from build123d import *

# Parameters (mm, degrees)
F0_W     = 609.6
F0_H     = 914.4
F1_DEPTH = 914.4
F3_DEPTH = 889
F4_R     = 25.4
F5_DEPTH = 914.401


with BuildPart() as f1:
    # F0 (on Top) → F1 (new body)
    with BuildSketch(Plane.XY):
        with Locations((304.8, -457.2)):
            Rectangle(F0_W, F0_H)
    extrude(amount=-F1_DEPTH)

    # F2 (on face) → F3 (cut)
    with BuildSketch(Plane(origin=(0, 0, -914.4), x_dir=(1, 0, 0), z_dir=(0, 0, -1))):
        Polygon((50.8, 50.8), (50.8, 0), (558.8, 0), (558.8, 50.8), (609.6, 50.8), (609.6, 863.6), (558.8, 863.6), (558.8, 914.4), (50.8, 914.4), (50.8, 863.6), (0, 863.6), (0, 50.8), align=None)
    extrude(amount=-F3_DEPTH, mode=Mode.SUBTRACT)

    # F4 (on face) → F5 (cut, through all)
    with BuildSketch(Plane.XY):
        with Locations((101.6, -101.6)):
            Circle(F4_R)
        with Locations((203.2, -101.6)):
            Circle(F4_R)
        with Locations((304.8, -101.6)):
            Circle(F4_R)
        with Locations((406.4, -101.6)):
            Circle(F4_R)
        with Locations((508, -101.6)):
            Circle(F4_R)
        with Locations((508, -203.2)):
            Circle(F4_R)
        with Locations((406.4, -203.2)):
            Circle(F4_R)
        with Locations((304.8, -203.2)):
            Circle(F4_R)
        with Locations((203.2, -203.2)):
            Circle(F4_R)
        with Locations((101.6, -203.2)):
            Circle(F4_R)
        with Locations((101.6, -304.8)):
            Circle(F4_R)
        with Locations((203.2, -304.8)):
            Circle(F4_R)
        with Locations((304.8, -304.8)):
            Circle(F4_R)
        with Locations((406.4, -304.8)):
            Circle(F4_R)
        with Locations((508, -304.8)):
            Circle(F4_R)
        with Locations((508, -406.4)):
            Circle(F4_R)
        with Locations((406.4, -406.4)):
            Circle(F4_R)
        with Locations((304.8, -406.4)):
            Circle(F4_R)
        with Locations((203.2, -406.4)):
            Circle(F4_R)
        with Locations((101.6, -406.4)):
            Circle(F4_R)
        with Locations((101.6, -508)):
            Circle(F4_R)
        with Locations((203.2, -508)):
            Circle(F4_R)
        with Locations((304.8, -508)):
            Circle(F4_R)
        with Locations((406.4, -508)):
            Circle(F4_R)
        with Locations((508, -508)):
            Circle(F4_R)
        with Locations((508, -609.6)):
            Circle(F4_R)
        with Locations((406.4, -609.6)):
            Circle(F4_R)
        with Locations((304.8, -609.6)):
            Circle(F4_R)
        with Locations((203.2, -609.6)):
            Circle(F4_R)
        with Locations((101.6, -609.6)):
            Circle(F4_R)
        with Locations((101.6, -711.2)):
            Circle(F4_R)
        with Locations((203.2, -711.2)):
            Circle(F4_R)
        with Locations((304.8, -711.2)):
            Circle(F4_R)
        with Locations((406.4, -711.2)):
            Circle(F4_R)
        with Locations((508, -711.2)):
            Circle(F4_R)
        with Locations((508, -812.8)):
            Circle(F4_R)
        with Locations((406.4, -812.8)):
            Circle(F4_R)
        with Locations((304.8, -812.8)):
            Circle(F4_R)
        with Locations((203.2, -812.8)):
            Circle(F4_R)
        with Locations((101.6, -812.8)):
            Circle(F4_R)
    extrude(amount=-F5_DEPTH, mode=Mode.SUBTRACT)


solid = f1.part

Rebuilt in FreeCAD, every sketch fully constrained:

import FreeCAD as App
import Part
import Sketcher
from FreeCAD import Vector
Q = App.Units.Quantity


def add_polygon(sketch, points):
    """Adds a closed chain of lines whose ends are joined by coincident constraints."""
    first, n = sketch.GeometryCount, len(points)
    for a, b in zip(points, points[1:] + points[:1]):
        sketch.addGeometry(Part.LineSegment(App.Vector(*a, 0), App.Vector(*b, 0)), False)
    for i in range(n):
        sketch.addConstraint(Sketcher.Constraint("Coincident", first + i, 2, first + (i + 1) % n, 1))

doc = App.newDocument("Part")
params = doc.addObject("Spreadsheet::Sheet", "Params")
for row, (alias, value) in enumerate([
    ("sketch1_width", "24 in"),
    ("sketch1_height", "36 in"),
    ("pad1_length", "36 in"),
    ("sketch2_width", "20 in"),
    ("sketch2_width2", "2 in"),
    ("sketch2_height", "32 in"),
    ("pocket1_length", "35 in"),
    ("sketch3_diameter", "2 in"),
], start=1):
    params.set(f"A{row}", alias)
    params.set(f"B{row}", "=" + value)
    params.setAlias(f"B{row}", alias)

body = doc.addObject("PartDesign::Body", "Body")

# Sketch on XY plane
sketch1 = doc.addObject("Sketcher::SketchObject", "Sketch")
body.addObject(sketch1)
sketch1.AttachmentSupport = (doc.XY_Plane, [""])
sketch1.MapMode = "FlatFace"
add_polygon(sketch1, [(0, 0), (0, -914), (610, -914), (610, 0)])  # lines 0-3
sketch1.addConstraint(Sketcher.Constraint("Vertical", 0))
sketch1.addConstraint(Sketcher.Constraint("Horizontal", 1))
sketch1.addConstraint(Sketcher.Constraint("Vertical", 2))
sketch1.addConstraint(Sketcher.Constraint("Horizontal", 3))
sketch1.addConstraint(Sketcher.Constraint("Coincident", 3, 2, -1, 1))
sketch1.addConstraint(Sketcher.Constraint("DistanceX", 1, 1, 1, 2, Q("24 in")))
sketch1.addConstraint(Sketcher.Constraint("DistanceY", 0, 2, 0, 1, Q("36 in")))
sketch1.setExpression("Constraints[9]", "Params.sketch1_width")
sketch1.setExpression("Constraints[10]", "Params.sketch1_height")
pad1 = doc.addObject("PartDesign::Pad", "Pad")
body.addObject(pad1)
pad1.Profile = sketch1
pad1.setExpression("Length", "Params.pad1_length")
pad1.Reversed = True

# Sketch on XY plane
sketch2 = doc.addObject("Sketcher::SketchObject", "Sketch001")
body.addObject(sketch2)
sketch2.AttachmentSupport = (doc.XY_Plane, [""])
sketch2.MapMode = "FlatFace"
sketch2.AttachmentOffset = App.Placement(Vector(0, 0, -36 * 25.4), App.Rotation())
add_polygon(sketch2, [(51, -51), (51, 0), (559, 0), (559, -51), (610, -51), (610, -864), (559, -864), (559, -914), (51, -914), (51, -864), (0, -864), (0, -51)])  # lines 0-11
sketch2.addConstraint(Sketcher.Constraint("Vertical", 0))
sketch2.addConstraint(Sketcher.Constraint("Horizontal", 1))
sketch2.addConstraint(Sketcher.Constraint("Vertical", 2))
sketch2.addConstraint(Sketcher.Constraint("Horizontal", 3))
sketch2.addConstraint(Sketcher.Constraint("Vertical", 4))
sketch2.addConstraint(Sketcher.Constraint("Horizontal", 5))
sketch2.addConstraint(Sketcher.Constraint("Vertical", 6))
sketch2.addConstraint(Sketcher.Constraint("Horizontal", 7))
sketch2.addConstraint(Sketcher.Constraint("Vertical", 8))
sketch2.addConstraint(Sketcher.Constraint("Horizontal", 9))
sketch2.addConstraint(Sketcher.Constraint("Vertical", 10))
sketch2.addConstraint(Sketcher.Constraint("Horizontal", 11))
sketch2.addConstraint(Sketcher.Constraint("PointOnObject", 0, 2, -1))
sketch2.addConstraint(Sketcher.Constraint("PointOnObject", 9, 2, -2))
sketch2.addConstraint(Sketcher.Constraint("Horizontal", 5, 2, 8, 2))
sketch2.addConstraint(Sketcher.Constraint("Horizontal", 3, 2, 10, 2))
sketch2.addConstraint(Sketcher.Constraint("Vertical", 2, 2, 5, 2))
sketch2.addConstraint(Sketcher.Constraint("Vertical", 0, 2, 7, 2))
sketch2.addConstraint(Sketcher.Constraint("Equal", 5, 9))
sketch2.addConstraint(Sketcher.Constraint("Equal", 11, 0))
sketch2.addConstraint(Sketcher.Constraint("Equal", 2, 6))
sketch2.addConstraint(Sketcher.Constraint("DistanceX", 1, 1, 1, 2, Q("20 in")))
sketch2.addConstraint(Sketcher.Constraint("DistanceX", 3, 1, 3, 2, Q("2 in")))
sketch2.addConstraint(Sketcher.Constraint("DistanceY", 4, 2, 4, 1, Q("32 in")))
sketch2.setExpression("Constraints[33]", "Params.sketch2_width")
sketch2.setExpression("Constraints[34]", "Params.sketch2_width2")
sketch2.setExpression("Constraints[35]", "Params.sketch2_height")
pocket1 = doc.addObject("PartDesign::Pocket", "Pocket")
body.addObject(pocket1)
pocket1.Profile = sketch2
pocket1.setExpression("Length", "Params.pocket1_length")
pocket1.Reversed = True

# Sketch on XY plane
sketch3 = doc.addObject("Sketcher::SketchObject", "Sketch002")
body.addObject(sketch3)
sketch3.AttachmentSupport = (doc.XY_Plane, [""])
sketch3.MapMode = "FlatFace"
sketch3.addGeometry(Part.Circle(Vector(102, -102, 0), Vector(0, 0, 1), 25), False)
sketch3.addGeometry(Part.Circle(Vector(203, -102, 0), Vector(0, 0, 1), 25), False)
sketch3.addGeometry(Part.Circle(Vector(305, -102, 0), Vector(0, 0, 1), 25), False)
sketch3.addGeometry(Part.Circle(Vector(406, -102, 0), Vector(0, 0, 1), 25), False)
sketch3.addGeometry(Part.Circle(Vector(508, -102, 0), Vector(0, 0, 1), 25), False)
sketch3.addGeometry(Part.Circle(Vector(508, -203, 0), Vector(0, 0, 1), 25), False)
sketch3.addGeometry(Part.Circle(Vector(406, -203, 0), Vector(0, 0, 1), 25), False)
sketch3.addGeometry(Part.Circle(Vector(305, -203, 0), Vector(0, 0, 1), 25), False)
sketch3.addGeometry(Part.Circle(Vector(203, -203, 0), Vector(0, 0, 1), 25), False)
sketch3.addGeometry(Part.Circle(Vector(102, -203, 0), Vector(0, 0, 1), 25), False)
sketch3.addGeometry(Part.Circle(Vector(102, -305, 0), Vector(0, 0, 1), 25), False)
sketch3.addGeometry(Part.Circle(Vector(203, -305, 0), Vector(0, 0, 1), 25), False)
sketch3.addGeometry(Part.Circle(Vector(305, -305, 0), Vector(0, 0, 1), 25), False)
sketch3.addGeometry(Part.Circle(Vector(406, -305, 0), Vector(0, 0, 1), 25), False)
sketch3.addGeometry(Part.Circle(Vector(508, -305, 0), Vector(0, 0, 1), 25), False)
sketch3.addGeometry(Part.Circle(Vector(508, -406, 0), Vector(0, 0, 1), 25), False)
sketch3.addGeometry(Part.Circle(Vector(406, -406, 0), Vector(0, 0, 1), 25), False)
sketch3.addGeometry(Part.Circle(Vector(305, -406, 0), Vector(0, 0, 1), 25), False)
sketch3.addGeometry(Part.Circle(Vector(203, -406, 0), Vector(0, 0, 1), 25), False)
sketch3.addGeometry(Part.Circle(Vector(102, -406, 0), Vector(0, 0, 1), 25), False)
sketch3.addGeometry(Part.Circle(Vector(102, -508, 0), Vector(0, 0, 1), 25), False)
sketch3.addGeometry(Part.Circle(Vector(203, -508, 0), Vector(0, 0, 1), 25), False)
sketch3.addGeometry(Part.Circle(Vector(305, -508, 0), Vector(0, 0, 1), 25), False)
sketch3.addGeometry(Part.Circle(Vector(406, -508, 0), Vector(0, 0, 1), 25), False)
sketch3.addGeometry(Part.Circle(Vector(508, -508, 0), Vector(0, 0, 1), 25), False)
sketch3.addGeometry(Part.Circle(Vector(508, -610, 0), Vector(0, 0, 1), 25), False)
sketch3.addGeometry(Part.Circle(Vector(406, -610, 0), Vector(0, 0, 1), 25), False)
sketch3.addGeometry(Part.Circle(Vector(305, -610, 0), Vector(0, 0, 1), 25), False)
sketch3.addGeometry(Part.Circle(Vector(203, -610, 0), Vector(0, 0, 1), 25), False)
sketch3.addGeometry(Part.Circle(Vector(102, -610, 0), Vector(0, 0, 1), 25), False)
sketch3.addGeometry(Part.Circle(Vector(102, -711, 0), Vector(0, 0, 1), 25), False)
sketch3.addGeometry(Part.Circle(Vector(203, -711, 0), Vector(0, 0, 1), 25), False)
sketch3.addGeometry(Part.Circle(Vector(305, -711, 0), Vector(0, 0, 1), 25), False)
sketch3.addGeometry(Part.Circle(Vector(406, -711, 0), Vector(0, 0, 1), 25), False)
sketch3.addGeometry(Part.Circle(Vector(508, -711, 0), Vector(0, 0, 1), 25), False)
sketch3.addGeometry(Part.Circle(Vector(508, -813, 0), Vector(0, 0, 1), 25), False)
sketch3.addGeometry(Part.Circle(Vector(406, -813, 0), Vector(0, 0, 1), 25), False)
sketch3.addGeometry(Part.Circle(Vector(305, -813, 0), Vector(0, 0, 1), 25), False)
sketch3.addGeometry(Part.Circle(Vector(203, -813, 0), Vector(0, 0, 1), 25), False)
sketch3.addGeometry(Part.Circle(Vector(102, -813, 0), Vector(0, 0, 1), 25), False)
sketch3.addConstraint(Sketcher.Constraint("Equal", 0, 1))
sketch3.addConstraint(Sketcher.Constraint("Equal", 1, 2))
sketch3.addConstraint(Sketcher.Constraint("Equal", 2, 3))
sketch3.addConstraint(Sketcher.Constraint("Equal", 3, 4))
sketch3.addConstraint(Sketcher.Constraint("Equal", 4, 5))
sketch3.addConstraint(Sketcher.Constraint("Equal", 5, 6))
sketch3.addConstraint(Sketcher.Constraint("Equal", 6, 7))
sketch3.addConstraint(Sketcher.Constraint("Equal", 7, 8))
sketch3.addConstraint(Sketcher.Constraint("Equal", 8, 9))
sketch3.addConstraint(Sketcher.Constraint("Equal", 9, 10))
sketch3.addConstraint(Sketcher.Constraint("Equal", 10, 11))
sketch3.addConstraint(Sketcher.Constraint("Equal", 11, 12))
sketch3.addConstraint(Sketcher.Constraint("Equal", 12, 13))
sketch3.addConstraint(Sketcher.Constraint("Equal", 13, 14))
sketch3.addConstraint(Sketcher.Constraint("Equal", 14, 15))
sketch3.addConstraint(Sketcher.Constraint("Equal", 15, 16))
sketch3.addConstraint(Sketcher.Constraint("Equal", 16, 17))
sketch3.addConstraint(Sketcher.Constraint("Equal", 17, 18))
sketch3.addConstraint(Sketcher.Constraint("Equal", 18, 19))
sketch3.addConstraint(Sketcher.Constraint("Equal", 19, 20))
sketch3.addConstraint(Sketcher.Constraint("Equal", 20, 21))
sketch3.addConstraint(Sketcher.Constraint("Equal", 21, 22))
sketch3.addConstraint(Sketcher.Constraint("Equal", 22, 23))
sketch3.addConstraint(Sketcher.Constraint("Equal", 23, 24))
sketch3.addConstraint(Sketcher.Constraint("Equal", 24, 25))
sketch3.addConstraint(Sketcher.Constraint("Equal", 25, 26))
sketch3.addConstraint(Sketcher.Constraint("Equal", 26, 27))
sketch3.addConstraint(Sketcher.Constraint("Equal", 27, 28))
sketch3.addConstraint(Sketcher.Constraint("Equal", 28, 29))
sketch3.addConstraint(Sketcher.Constraint("Equal", 29, 30))
sketch3.addConstraint(Sketcher.Constraint("Equal", 30, 31))
sketch3.addConstraint(Sketcher.Constraint("Equal", 31, 32))
sketch3.addConstraint(Sketcher.Constraint("Equal", 32, 33))
sketch3.addConstraint(Sketcher.Constraint("Equal", 33, 34))
sketch3.addConstraint(Sketcher.Constraint("Equal", 34, 35))
sketch3.addConstraint(Sketcher.Constraint("Equal", 35, 36))
sketch3.addConstraint(Sketcher.Constraint("Equal", 36, 37))
sketch3.addConstraint(Sketcher.Constraint("Equal", 37, 38))
sketch3.addConstraint(Sketcher.Constraint("Equal", 38, 39))
sketch3.addConstraint(Sketcher.Constraint("Horizontal", 0, 3, 1, 3))
sketch3.addConstraint(Sketcher.Constraint("Horizontal", 1, 3, 2, 3))
sketch3.addConstraint(Sketcher.Constraint("Horizontal", 2, 3, 3, 3))
sketch3.addConstraint(Sketcher.Constraint("Horizontal", 3, 3, 4, 3))
sketch3.addConstraint(Sketcher.Constraint("Horizontal", 5, 3, 6, 3))
sketch3.addConstraint(Sketcher.Constraint("Horizontal", 6, 3, 7, 3))
sketch3.addConstraint(Sketcher.Constraint("Horizontal", 7, 3, 8, 3))
sketch3.addConstraint(Sketcher.Constraint("Horizontal", 8, 3, 9, 3))
sketch3.addConstraint(Sketcher.Constraint("Horizontal", 10, 3, 11, 3))
sketch3.addConstraint(Sketcher.Constraint("Horizontal", 11, 3, 12, 3))
sketch3.addConstraint(Sketcher.Constraint("Horizontal", 12, 3, 13, 3))
sketch3.addConstraint(Sketcher.Constraint("Horizontal", 13, 3, 14, 3))
sketch3.addConstraint(Sketcher.Constraint("Horizontal", 15, 3, 16, 3))
sketch3.addConstraint(Sketcher.Constraint("Horizontal", 16, 3, 17, 3))
sketch3.addConstraint(Sketcher.Constraint("Horizontal", 17, 3, 18, 3))
sketch3.addConstraint(Sketcher.Constraint("Horizontal", 18, 3, 19, 3))
sketch3.addConstraint(Sketcher.Constraint("Horizontal", 20, 3, 21, 3))
sketch3.addConstraint(Sketcher.Constraint("Horizontal", 21, 3, 22, 3))
sketch3.addConstraint(Sketcher.Constraint("Horizontal", 22, 3, 23, 3))
sketch3.addConstraint(Sketcher.Constraint("Horizontal", 23, 3, 24, 3))
sketch3.addConstraint(Sketcher.Constraint("Horizontal", 25, 3, 26, 3))
sketch3.addConstraint(Sketcher.Constraint("Horizontal", 26, 3, 27, 3))
sketch3.addConstraint(Sketcher.Constraint("Horizontal", 27, 3, 28, 3))
sketch3.addConstraint(Sketcher.Constraint("Horizontal", 28, 3, 29, 3))
sketch3.addConstraint(Sketcher.Constraint("Horizontal", 30, 3, 31, 3))
sketch3.addConstraint(Sketcher.Constraint("Horizontal", 31, 3, 32, 3))
sketch3.addConstraint(Sketcher.Constraint("Horizontal", 32, 3, 33, 3))
sketch3.addConstraint(Sketcher.Constraint("Horizontal", 33, 3, 34, 3))
sketch3.addConstraint(Sketcher.Constraint("Horizontal", 35, 3, 36, 3))
sketch3.addConstraint(Sketcher.Constraint("Horizontal", 36, 3, 37, 3))
sketch3.addConstraint(Sketcher.Constraint("Horizontal", 37, 3, 38, 3))
sketch3.addConstraint(Sketcher.Constraint("Horizontal", 38, 3, 39, 3))
sketch3.addConstraint(Sketcher.Constraint("Vertical", 4, 3, 5, 3))
sketch3.addConstraint(Sketcher.Constraint("Vertical", 3, 3, 6, 3))
sketch3.addConstraint(Sketcher.Constraint("Vertical", 2, 3, 7, 3))
sketch3.addConstraint(Sketcher.Constraint("Vertical", 1, 3, 8, 3))
sketch3.addConstraint(Sketcher.Constraint("Vertical", 0, 3, 9, 3))
sketch3.addConstraint(Sketcher.Constraint("Vertical", 9, 3, 10, 3))
sketch3.addConstraint(Sketcher.Constraint("Vertical", 8, 3, 11, 3))
sketch3.addConstraint(Sketcher.Constraint("Vertical", 7, 3, 12, 3))
sketch3.addConstraint(Sketcher.Constraint("Vertical", 6, 3, 13, 3))
sketch3.addConstraint(Sketcher.Constraint("Vertical", 5, 3, 14, 3))
sketch3.addConstraint(Sketcher.Constraint("Vertical", 14, 3, 15, 3))
sketch3.addConstraint(Sketcher.Constraint("Vertical", 13, 3, 16, 3))
sketch3.addConstraint(Sketcher.Constraint("Vertical", 12, 3, 17, 3))
sketch3.addConstraint(Sketcher.Constraint("Vertical", 11, 3, 18, 3))
sketch3.addConstraint(Sketcher.Constraint("Vertical", 10, 3, 19, 3))
sketch3.addConstraint(Sketcher.Constraint("Vertical", 19, 3, 20, 3))
sketch3.addConstraint(Sketcher.Constraint("Vertical", 18, 3, 21, 3))
sketch3.addConstraint(Sketcher.Constraint("Vertical", 17, 3, 22, 3))
sketch3.addConstraint(Sketcher.Constraint("Vertical", 16, 3, 23, 3))
sketch3.addConstraint(Sketcher.Constraint("Vertical", 15, 3, 24, 3))
sketch3.addConstraint(Sketcher.Constraint("Vertical", 24, 3, 25, 3))
sketch3.addConstraint(Sketcher.Constraint("Vertical", 23, 3, 26, 3))
sketch3.addConstraint(Sketcher.Constraint("Vertical", 22, 3, 27, 3))
sketch3.addConstraint(Sketcher.Constraint("Vertical", 21, 3, 28, 3))
sketch3.addConstraint(Sketcher.Constraint("Vertical", 20, 3, 29, 3))
sketch3.addConstraint(Sketcher.Constraint("Vertical", 29, 3, 30, 3))
sketch3.addConstraint(Sketcher.Constraint("Vertical", 28, 3, 31, 3))
sketch3.addConstraint(Sketcher.Constraint("Vertical", 27, 3, 32, 3))
sketch3.addConstraint(Sketcher.Constraint("Vertical", 26, 3, 33, 3))
sketch3.addConstraint(Sketcher.Constraint("Vertical", 25, 3, 34, 3))
sketch3.addConstraint(Sketcher.Constraint("Vertical", 34, 3, 35, 3))
sketch3.addConstraint(Sketcher.Constraint("Vertical", 33, 3, 36, 3))
sketch3.addConstraint(Sketcher.Constraint("Vertical", 32, 3, 37, 3))
sketch3.addConstraint(Sketcher.Constraint("Vertical", 31, 3, 38, 3))
sketch3.addConstraint(Sketcher.Constraint("Vertical", 30, 3, 39, 3))
sketch3.addConstraint(Sketcher.Constraint("Diameter", 0, Q("2 in")))
sketch3.addConstraint(Sketcher.Constraint("DistanceX", -1, 1, 0, 3, Q("4 in")))
sketch3.addConstraint(Sketcher.Constraint("DistanceY", 0, 3, -1, 1, Q("4 in")))
sketch3.addConstraint(Sketcher.Constraint("DistanceX", -1, 1, 1, 3, Q("8 in")))
sketch3.addConstraint(Sketcher.Constraint("DistanceX", -1, 1, 2, 3, Q("12 in")))
sketch3.addConstraint(Sketcher.Constraint("DistanceX", -1, 1, 3, 3, Q("16 in")))
sketch3.addConstraint(Sketcher.Constraint("DistanceX", -1, 1, 4, 3, Q("20 in")))
sketch3.addConstraint(Sketcher.Constraint("DistanceY", 5, 3, -1, 1, Q("8 in")))
sketch3.addConstraint(Sketcher.Constraint("DistanceY", 10, 3, -1, 1, Q("12 in")))
sketch3.addConstraint(Sketcher.Constraint("DistanceY", 15, 3, -1, 1, Q("16 in")))
sketch3.addConstraint(Sketcher.Constraint("DistanceY", 20, 3, -1, 1, Q("20 in")))
sketch3.addConstraint(Sketcher.Constraint("DistanceY", 25, 3, -1, 1, Q("24 in")))
sketch3.addConstraint(Sketcher.Constraint("DistanceY", 30, 3, -1, 1, Q("28 in")))
sketch3.addConstraint(Sketcher.Constraint("DistanceY", 35, 3, -1, 1, Q("32 in")))
sketch3.setExpression("Constraints[106]", "Params.sketch3_diameter")
pocket2 = doc.addObject("PartDesign::Pocket", "Pocket001")
body.addObject(pocket2)
pocket2.Profile = sketch3
pocket2.Type = "ThroughAll"

doc.recompute()
